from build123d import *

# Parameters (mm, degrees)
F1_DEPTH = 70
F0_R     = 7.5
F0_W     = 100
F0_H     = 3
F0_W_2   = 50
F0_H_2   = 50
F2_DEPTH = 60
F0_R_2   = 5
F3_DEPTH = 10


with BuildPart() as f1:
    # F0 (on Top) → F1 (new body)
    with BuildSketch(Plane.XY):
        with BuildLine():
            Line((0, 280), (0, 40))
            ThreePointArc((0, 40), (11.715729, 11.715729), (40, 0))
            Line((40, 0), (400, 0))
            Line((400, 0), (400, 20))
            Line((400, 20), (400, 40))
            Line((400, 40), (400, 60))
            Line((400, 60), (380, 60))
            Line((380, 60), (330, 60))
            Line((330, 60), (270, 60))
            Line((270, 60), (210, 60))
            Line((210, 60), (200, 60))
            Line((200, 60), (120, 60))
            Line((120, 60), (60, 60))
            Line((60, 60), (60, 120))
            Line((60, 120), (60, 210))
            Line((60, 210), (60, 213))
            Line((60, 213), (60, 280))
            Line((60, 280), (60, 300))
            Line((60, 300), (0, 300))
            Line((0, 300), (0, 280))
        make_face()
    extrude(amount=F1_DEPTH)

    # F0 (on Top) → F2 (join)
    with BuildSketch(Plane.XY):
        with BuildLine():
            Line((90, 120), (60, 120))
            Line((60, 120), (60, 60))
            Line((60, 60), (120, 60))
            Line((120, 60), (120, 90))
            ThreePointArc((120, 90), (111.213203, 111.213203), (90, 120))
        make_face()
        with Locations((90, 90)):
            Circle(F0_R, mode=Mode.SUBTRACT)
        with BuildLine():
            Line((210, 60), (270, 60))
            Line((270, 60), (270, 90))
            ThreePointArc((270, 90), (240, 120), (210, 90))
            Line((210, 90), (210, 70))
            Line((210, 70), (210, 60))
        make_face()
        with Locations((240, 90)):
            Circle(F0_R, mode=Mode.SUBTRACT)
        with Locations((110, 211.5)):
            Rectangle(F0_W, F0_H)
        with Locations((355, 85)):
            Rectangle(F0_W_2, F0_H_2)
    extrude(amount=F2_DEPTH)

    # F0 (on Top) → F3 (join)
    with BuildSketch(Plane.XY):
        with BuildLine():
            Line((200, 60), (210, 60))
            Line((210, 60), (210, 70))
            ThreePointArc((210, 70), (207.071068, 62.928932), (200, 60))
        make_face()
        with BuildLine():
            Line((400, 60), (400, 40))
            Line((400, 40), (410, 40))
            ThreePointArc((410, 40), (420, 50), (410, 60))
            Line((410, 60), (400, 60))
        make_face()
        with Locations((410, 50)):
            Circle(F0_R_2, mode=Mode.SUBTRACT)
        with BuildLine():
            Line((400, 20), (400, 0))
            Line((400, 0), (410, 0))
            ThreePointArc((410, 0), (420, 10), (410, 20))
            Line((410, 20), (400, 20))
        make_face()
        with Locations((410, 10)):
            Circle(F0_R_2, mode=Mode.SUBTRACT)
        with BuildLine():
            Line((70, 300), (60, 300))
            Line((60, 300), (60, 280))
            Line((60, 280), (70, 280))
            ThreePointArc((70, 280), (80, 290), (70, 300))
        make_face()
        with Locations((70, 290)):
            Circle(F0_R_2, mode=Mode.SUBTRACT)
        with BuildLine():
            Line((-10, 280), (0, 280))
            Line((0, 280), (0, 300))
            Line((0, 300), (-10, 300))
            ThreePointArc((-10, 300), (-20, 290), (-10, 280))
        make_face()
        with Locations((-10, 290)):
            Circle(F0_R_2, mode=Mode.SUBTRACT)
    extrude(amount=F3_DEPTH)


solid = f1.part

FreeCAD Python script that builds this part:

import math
import FreeCAD as App
import Part
import Sketcher

V = App.Vector
Q = App.Units.Quantity

doc = App.newDocument("Part")
body = doc.addObject("PartDesign::Body", "Body")

sketch1 = body.newObject("Sketcher::SketchObject", "Sketch")
sketch1.AttachmentSupport = (doc.getObject("XY_Plane"), [""])
sketch1.MapMode = "FlatFace"
sketch1.addGeometry([
    Part.ArcOfCircle(Part.Circle(V(40.000001, 40.000001, 0), V(0, 0, 1), 40.000001), math.radians(-179.999999), math.radians(-90.000001)),
    Part.LineSegment(V(40, 0, 0), V(400, 0, 0)),
    Part.LineSegment(V(400, 0, 0), V(400, 60, 0)),
    Part.LineSegment(V(400, 60, 0), V(60, 60, 0)),
    Part.LineSegment(V(60, 60, 0), V(60, 300, 0)),
    Part.LineSegment(V(60, 300, 0), V(0, 300, 0)),
    Part.LineSegment(V(0, 300, 0), V(0, 40, 0)),
], False)
sketch1.addConstraint([
    Sketcher.Constraint("Tangent", 0, 2, 1, 1),
    Sketcher.Constraint("Coincident", 1, 2, 2, 1),
    Sketcher.Constraint("Coincident", 2, 2, 3, 1),
    Sketcher.Constraint("Coincident", 3, 2, 4, 1),
    Sketcher.Constraint("Coincident", 4, 2, 5, 1),
    Sketcher.Constraint("Coincident", 5, 2, 6, 1),
    Sketcher.Constraint("Tangent", 6, 2, 0, 1),
    Sketcher.Constraint("Horizontal", 1),
    Sketcher.Constraint("Vertical", 2),
    Sketcher.Constraint("Horizontal", 3),
    Sketcher.Constraint("Vertical", 4),
    Sketcher.Constraint("Horizontal", 5),
    Sketcher.Constraint("Vertical", 6),
    Sketcher.Constraint("PointOnObject", 0, 2, -1),
    Sketcher.Constraint("PointOnObject", 5, 2, -2),
    Sketcher.Constraint("Equal", 5, 2),
    Sketcher.Constraint("Radius", 0, Q("40.000001 mm")),
    Sketcher.Constraint("DistanceX", 1, 1, 1, 2, Q("360 mm")),
    Sketcher.Constraint("DistanceX", 3, 2, 3, 1, Q("340 mm")),
    Sketcher.Constraint("DistanceY", 4, 1, 4, 2, Q("240 mm")),
])
pad1 = body.newObject("PartDesign::Pad", "Pad")
pad1.Profile = sketch1
pad1.Length = 70

sketch2 = body.newObject("Sketcher::SketchObject", "Sketch001")
sketch2.AttachmentSupport = (doc.getObject("XY_Plane"), [""])
sketch2.MapMode = "FlatFace"
sketch2.addGeometry([
    Part.LineSegment(V(90, 120, 0), V(60, 120, 0)),
    Part.LineSegment(V(60, 120, 0), V(60, 60, 0)),
    Part.LineSegment(V(60, 60, 0), V(120, 60, 0)),
    Part.LineSegment(V(120, 60, 0), V(120, 90, 0)),
    Part.ArcOfCircle(Part.Circle(V(89.999999, 89.999999, 0), V(0, 0, 1), 30.000001), math.radians(0.000003), math.radians(89.999997)),
    Part.Circle(V(90, 90, 0), V(0, 0, 1), 7.5),
    Part.LineSegment(V(210, 60, 0), V(270, 60, 0)),
    Part.LineSegment(V(270, 60, 0), V(270, 90, 0)),
    Part.ArcOfCircle(Part.Circle(V(240, 90, 0), V(0, 0, 1), 30), math.radians(0), math.radians(180)),
    Part.LineSegment(V(210, 90, 0), V(210, 60, 0)),
    Part.Circle(V(240, 90, 0), V(0, 0, 1), 7.5),
    Part.LineSegment(V(60, 213, 0), V(60, 210, 0)),
    Part.LineSegment(V(60, 210, 0), V(160, 210, 0)),
    Part.LineSegment(V(160, 210, 0), V(160, 213, 0)),
    Part.LineSegment(V(160, 213, 0), V(60, 213, 0)),
    Part.LineSegment(V(330, 110, 0), V(330, 60, 0)),
    Part.LineSegment(V(330, 60, 0), V(380, 60, 0)),
    Part.LineSegment(V(380, 60, 0), V(380, 110, 0)),
    Part.LineSegment(V(380, 110, 0), V(330, 110, 0)),
], False)
sketch2.addConstraint([
    Sketcher.Constraint("Coincident", 0, 2, 1, 1),
    Sketcher.Constraint("Coincident", 1, 2, 2, 1),
    Sketcher.Constraint("Coincident", 2, 2, 3, 1),
    Sketcher.Constraint("Tangent", 3, 2, 4, 1),
    Sketcher.Constraint("Tangent", 4, 2, 0, 1),
    Sketcher.Constraint("Coincident", 6, 2, 7, 1),
    Sketcher.Constraint("Tangent", 7, 2, 8, 1),
    Sketcher.Constraint("Tangent", 8, 2, 9, 1),
    Sketcher.Constraint("Coincident", 9, 2, 6, 1),
    Sketcher.Constraint("Coincident", 11, 2, 12, 1),
    Sketcher.Constraint("Coincident", 12, 2, 13, 1),
    Sketcher.Constraint("Coincident", 13, 2, 14, 1),
    Sketcher.Constraint("Coincident", 14, 2, 11, 1),
    Sketcher.Constraint("Coincident", 15, 2, 16, 1),
    Sketcher.Constraint("Coincident", 16, 2, 17, 1),
    Sketcher.Constraint("Coincident", 17, 2, 18, 1),
    Sketcher.Constraint("Coincident", 18, 2, 15, 1),
    Sketcher.Constraint("Horizontal", 0),
    Sketcher.Constraint("Vertical", 1),
    Sketcher.Constraint("Horizontal", 2),
    Sketcher.Constraint("Vertical", 3),
    Sketcher.Constraint("Horizontal", 6),
    Sketcher.Constraint("Vertical", 7),
    Sketcher.Constraint("Vertical", 9),
    Sketcher.Constraint("Vertical", 11),
    Sketcher.Constraint("Horizontal", 12),
    Sketcher.Constraint("Vertical", 13),
    Sketcher.Constraint("Horizontal", 14),
    Sketcher.Constraint("Vertical", 15),
    Sketcher.Constraint("Horizontal", 16),
    Sketcher.Constraint("Vertical", 17),
    Sketcher.Constraint("Horizontal", 18),
    Sketcher.Constraint("Coincident", 5, 3, 4, 3),
    Sketcher.Constraint("Coincident", 10, 3, 8, 3),
    Sketcher.Constraint("Equal", 4, 8),
    Sketcher.Constraint("Equal", 5, 10),
    Sketcher.Constraint("Horizontal", 5, 3, 8, 3),
    Sketcher.Constraint("Horizontal", 2, 2, 6, 2),
    Sketcher.Constraint("Horizontal", 9, 2, 15, 2),
    Sketcher.Constraint("Vertical", 1, 2, 11, 2),
    Sketcher.Constraint("Equal", 2, 6),
    Sketcher.Constraint("Equal", 6, 1),
    Sketcher.Constraint("Equal", 18, 15),
    Sketcher.Constraint("Diameter", 5, Q("15 mm")),
    Sketcher.Constraint("Radius", 4, Q("30.000001 mm")),
    Sketcher.Constraint("DistanceX", 12, 1, 12, 2, Q("100 mm")),
    Sketcher.Constraint("DistanceX", 16, 1, 16, 2, Q("50 mm")),
    Sketcher.Constraint("DistanceY", 11, 2, 11, 1, Q("3 mm")),
    Sketcher.Constraint("DistanceX", -1, 1, 4, 3, Q("89.999999 mm")),
    Sketcher.Constraint("DistanceY", -1, 1, 4, 3, Q("89.999999 mm")),
    Sketcher.Constraint("DistanceX", -1, 1, 8, 3, Q("240 mm")),
    Sketcher.Constraint("DistanceY", -1, 1, 11, 2, Q("210 mm")),
    Sketcher.Constraint("DistanceX", -1, 1, 15, 2, Q("330 mm")),
])
pad2 = body.newObject("PartDesign::Pad", "Pad001")
pad2.Profile = sketch2
pad2.Length = 60

sketch3 = body.newObject("Sketcher::SketchObject", "Sketch002")
sketch3.AttachmentSupport = (doc.getObject("XY_Plane"), [""])
sketch3.MapMode = "FlatFace"
sketch3.addGeometry([
    Part.LineSegment(V(200, 60, 0), V(210, 60, 0)),
    Part.LineSegment(V(210, 60, 0), V(210, 70, 0)),
    Part.ArcOfCircle(Part.Circle(V(200.000001, 69.999999, 0), V(0, 0, 1), 9.999999), math.radians(-90.000004), math.radians(0.000004)),
    Part.LineSegment(V(400, 60, 0), V(400, 40, 0)),
    Part.LineSegment(V(400, 40, 0), V(410, 40, 0)),
    Part.ArcOfCircle(Part.Circle(V(410, 50, 0), V(0, 0, 1), 10), math.radians(-90), math.radians(90)),
    Part.LineSegment(V(410, 60, 0), V(400, 60, 0)),
    Part.Circle(V(410, 50, 0), V(0, 0, 1), 5),
    Part.LineSegment(V(400, 20, 0), V(400, 0, 0)),
    Part.LineSegment(V(400, 0, 0), V(410, 0, 0)),
    Part.ArcOfCircle(Part.Circle(V(410, 10, 0), V(0, 0, 1), 10), math.radians(-90), math.radians(90)),
    Part.LineSegment(V(410, 20, 0), V(400, 20, 0)),
    Part.Circle(V(410, 10, 0), V(0, 0, 1), 5),
    Part.LineSegment(V(70, 300, 0), V(60, 300, 0)),
    Part.LineSegment(V(60, 300, 0), V(60, 280, 0)),
    Part.LineSegment(V(60, 280, 0), V(70, 280, 0)),
    Part.ArcOfCircle(Part.Circle(V(70, 290, 0), V(0, 0, 1), 10), math.radians(-90), math.radians(90)),
    Part.Circle(V(70, 290, 0), V(0, 0, 1), 5),
    Part.LineSegment(V(-10, 280, 0), V(0, 280, 0)),
    Part.LineSegment(V(0, 280, 0), V(0, 300, 0)),
    Part.LineSegment(V(0, 300, 0), V(-10, 300, 0)),
    Part.ArcOfCircle(Part.Circle(V(-10, 290, 0), V(0, 0, 1), 10), math.radians(90), math.radians(270)),
    Part.Circle(V(-10, 290, 0), V(0, 0, 1), 5),
], False)
sketch3.addConstraint([
    Sketcher.Constraint("Coincident", 0, 2, 1, 1),
    Sketcher.Constraint("Tangent", 1, 2, 2, 2),
    Sketcher.Constraint("Tangent", 2, 1, 0, 1),
    Sketcher.Constraint("Coincident", 3, 2, 4, 1),
    Sketcher.Constraint("Tangent", 4, 2, 5, 1),
    Sketcher.Constraint("Tangent", 5, 2, 6, 1),
    Sketcher.Constraint("Coincident", 6, 2, 3, 1),
    Sketcher.Constraint("Coincident", 8, 2, 9, 1),
    Sketcher.Constraint("Tangent", 9, 2, 10, 1),
    Sketcher.Constraint("Tangent", 10, 2, 11, 1),
    Sketcher.Constraint("Coincident", 11, 2, 8, 1),
    Sketcher.Constraint("Coincident", 13, 2, 14, 1),
    Sketcher.Constraint("Coincident", 14, 2, 15, 1),
    Sketcher.Constraint("Tangent", 15, 2, 16, 1),
    Sketcher.Constraint("Tangent", 16, 2, 13, 1),
    Sketcher.Constraint("Coincident", 18, 2, 19, 1),
    Sketcher.Constraint("Coincident", 19, 2, 20, 1),
    Sketcher.Constraint("Tangent", 20, 2, 21, 1),
    Sketcher.Constraint("Tangent", 21, 2, 18, 1),
    Sketcher.Constraint("Horizontal", 0),
    Sketcher.Constraint("Vertical", 1),
    Sketcher.Constraint("Vertical", 3),
    Sketcher.Constraint("Horizontal", 4),
    Sketcher.Constraint("Horizontal", 6),
    Sketcher.Constraint("Vertical", 8),
    Sketcher.Constraint("Horizontal", 9),
    Sketcher.Constraint("Horizontal", 11),
    Sketcher.Constraint("Horizontal", 13),
    Sketcher.Constraint("Vertical", 14),
    Sketcher.Constraint("Horizontal", 15),
    Sketcher.Constraint("Horizontal", 18),
    Sketcher.Constraint("Vertical", 19),
    Sketcher.Constraint("Horizontal", 20),
    Sketcher.Constraint("Coincident", 7, 3, 5, 3),
    Sketcher.Constraint("Coincident", 12, 3, 10, 3),
    Sketcher.Constraint("Coincident", 17, 3, 16, 3),
    Sketcher.Constraint("Coincident", 22, 3, 21, 3),
    Sketcher.Constraint("Equal", 2, 5),
    Sketcher.Constraint("Equal", 5, 10),
    Sketcher.Constraint("Equal", 7, 12),
    Sketcher.Constraint("Equal", 10, 16),
    Sketcher.Constraint("Equal", 12, 17),
    Sketcher.Constraint("Equal", 16, 21),
    Sketcher.Constraint("Equal", 17, 22),
    Sketcher.Constraint("PointOnObject", 8, 2, -1),
    Sketcher.Constraint("PointOnObject", 18, 2, -2),
    Sketcher.Constraint("Horizontal", 17, 3, 21, 3),
    Sketcher.Constraint("Horizontal", 2, 1, 5, 2),
    Sketcher.Constraint("Vertical", 7, 3, 10, 3),
    Sketcher.Constraint("Vertical", 6, 2, 8, 2),
    Sketcher.Constraint("Equal", 0, 4),
    Sketcher.Constraint("Equal", 11, 13),
    Sketcher.Constraint("Equal", 15, 18),
    Sketcher.Constraint("Diameter", 7, Q("10 mm")),
    Sketcher.Constraint("Radius", 2, Q("9.999999 mm")),
    Sketcher.Constraint("DistanceX", -1, 1, 2, 3, Q("200.000001 mm")),
    Sketcher.Constraint("DistanceY", -1, 1, 2, 3, Q("69.999999 mm")),
    Sketcher.Constraint("DistanceX", -1, 1, 5, 3, Q("410 mm")),
    Sketcher.Constraint("DistanceX", -1, 1, 16, 3, Q("70 mm")),
    Sketcher.Constraint("DistanceY", -1, 1, 16, 3, Q("290 mm")),
])
pad3 = body.newObject("PartDesign::Pad", "Pad002")
pad3.Profile = sketch3
pad3.Length = 10

doc.recompute()
